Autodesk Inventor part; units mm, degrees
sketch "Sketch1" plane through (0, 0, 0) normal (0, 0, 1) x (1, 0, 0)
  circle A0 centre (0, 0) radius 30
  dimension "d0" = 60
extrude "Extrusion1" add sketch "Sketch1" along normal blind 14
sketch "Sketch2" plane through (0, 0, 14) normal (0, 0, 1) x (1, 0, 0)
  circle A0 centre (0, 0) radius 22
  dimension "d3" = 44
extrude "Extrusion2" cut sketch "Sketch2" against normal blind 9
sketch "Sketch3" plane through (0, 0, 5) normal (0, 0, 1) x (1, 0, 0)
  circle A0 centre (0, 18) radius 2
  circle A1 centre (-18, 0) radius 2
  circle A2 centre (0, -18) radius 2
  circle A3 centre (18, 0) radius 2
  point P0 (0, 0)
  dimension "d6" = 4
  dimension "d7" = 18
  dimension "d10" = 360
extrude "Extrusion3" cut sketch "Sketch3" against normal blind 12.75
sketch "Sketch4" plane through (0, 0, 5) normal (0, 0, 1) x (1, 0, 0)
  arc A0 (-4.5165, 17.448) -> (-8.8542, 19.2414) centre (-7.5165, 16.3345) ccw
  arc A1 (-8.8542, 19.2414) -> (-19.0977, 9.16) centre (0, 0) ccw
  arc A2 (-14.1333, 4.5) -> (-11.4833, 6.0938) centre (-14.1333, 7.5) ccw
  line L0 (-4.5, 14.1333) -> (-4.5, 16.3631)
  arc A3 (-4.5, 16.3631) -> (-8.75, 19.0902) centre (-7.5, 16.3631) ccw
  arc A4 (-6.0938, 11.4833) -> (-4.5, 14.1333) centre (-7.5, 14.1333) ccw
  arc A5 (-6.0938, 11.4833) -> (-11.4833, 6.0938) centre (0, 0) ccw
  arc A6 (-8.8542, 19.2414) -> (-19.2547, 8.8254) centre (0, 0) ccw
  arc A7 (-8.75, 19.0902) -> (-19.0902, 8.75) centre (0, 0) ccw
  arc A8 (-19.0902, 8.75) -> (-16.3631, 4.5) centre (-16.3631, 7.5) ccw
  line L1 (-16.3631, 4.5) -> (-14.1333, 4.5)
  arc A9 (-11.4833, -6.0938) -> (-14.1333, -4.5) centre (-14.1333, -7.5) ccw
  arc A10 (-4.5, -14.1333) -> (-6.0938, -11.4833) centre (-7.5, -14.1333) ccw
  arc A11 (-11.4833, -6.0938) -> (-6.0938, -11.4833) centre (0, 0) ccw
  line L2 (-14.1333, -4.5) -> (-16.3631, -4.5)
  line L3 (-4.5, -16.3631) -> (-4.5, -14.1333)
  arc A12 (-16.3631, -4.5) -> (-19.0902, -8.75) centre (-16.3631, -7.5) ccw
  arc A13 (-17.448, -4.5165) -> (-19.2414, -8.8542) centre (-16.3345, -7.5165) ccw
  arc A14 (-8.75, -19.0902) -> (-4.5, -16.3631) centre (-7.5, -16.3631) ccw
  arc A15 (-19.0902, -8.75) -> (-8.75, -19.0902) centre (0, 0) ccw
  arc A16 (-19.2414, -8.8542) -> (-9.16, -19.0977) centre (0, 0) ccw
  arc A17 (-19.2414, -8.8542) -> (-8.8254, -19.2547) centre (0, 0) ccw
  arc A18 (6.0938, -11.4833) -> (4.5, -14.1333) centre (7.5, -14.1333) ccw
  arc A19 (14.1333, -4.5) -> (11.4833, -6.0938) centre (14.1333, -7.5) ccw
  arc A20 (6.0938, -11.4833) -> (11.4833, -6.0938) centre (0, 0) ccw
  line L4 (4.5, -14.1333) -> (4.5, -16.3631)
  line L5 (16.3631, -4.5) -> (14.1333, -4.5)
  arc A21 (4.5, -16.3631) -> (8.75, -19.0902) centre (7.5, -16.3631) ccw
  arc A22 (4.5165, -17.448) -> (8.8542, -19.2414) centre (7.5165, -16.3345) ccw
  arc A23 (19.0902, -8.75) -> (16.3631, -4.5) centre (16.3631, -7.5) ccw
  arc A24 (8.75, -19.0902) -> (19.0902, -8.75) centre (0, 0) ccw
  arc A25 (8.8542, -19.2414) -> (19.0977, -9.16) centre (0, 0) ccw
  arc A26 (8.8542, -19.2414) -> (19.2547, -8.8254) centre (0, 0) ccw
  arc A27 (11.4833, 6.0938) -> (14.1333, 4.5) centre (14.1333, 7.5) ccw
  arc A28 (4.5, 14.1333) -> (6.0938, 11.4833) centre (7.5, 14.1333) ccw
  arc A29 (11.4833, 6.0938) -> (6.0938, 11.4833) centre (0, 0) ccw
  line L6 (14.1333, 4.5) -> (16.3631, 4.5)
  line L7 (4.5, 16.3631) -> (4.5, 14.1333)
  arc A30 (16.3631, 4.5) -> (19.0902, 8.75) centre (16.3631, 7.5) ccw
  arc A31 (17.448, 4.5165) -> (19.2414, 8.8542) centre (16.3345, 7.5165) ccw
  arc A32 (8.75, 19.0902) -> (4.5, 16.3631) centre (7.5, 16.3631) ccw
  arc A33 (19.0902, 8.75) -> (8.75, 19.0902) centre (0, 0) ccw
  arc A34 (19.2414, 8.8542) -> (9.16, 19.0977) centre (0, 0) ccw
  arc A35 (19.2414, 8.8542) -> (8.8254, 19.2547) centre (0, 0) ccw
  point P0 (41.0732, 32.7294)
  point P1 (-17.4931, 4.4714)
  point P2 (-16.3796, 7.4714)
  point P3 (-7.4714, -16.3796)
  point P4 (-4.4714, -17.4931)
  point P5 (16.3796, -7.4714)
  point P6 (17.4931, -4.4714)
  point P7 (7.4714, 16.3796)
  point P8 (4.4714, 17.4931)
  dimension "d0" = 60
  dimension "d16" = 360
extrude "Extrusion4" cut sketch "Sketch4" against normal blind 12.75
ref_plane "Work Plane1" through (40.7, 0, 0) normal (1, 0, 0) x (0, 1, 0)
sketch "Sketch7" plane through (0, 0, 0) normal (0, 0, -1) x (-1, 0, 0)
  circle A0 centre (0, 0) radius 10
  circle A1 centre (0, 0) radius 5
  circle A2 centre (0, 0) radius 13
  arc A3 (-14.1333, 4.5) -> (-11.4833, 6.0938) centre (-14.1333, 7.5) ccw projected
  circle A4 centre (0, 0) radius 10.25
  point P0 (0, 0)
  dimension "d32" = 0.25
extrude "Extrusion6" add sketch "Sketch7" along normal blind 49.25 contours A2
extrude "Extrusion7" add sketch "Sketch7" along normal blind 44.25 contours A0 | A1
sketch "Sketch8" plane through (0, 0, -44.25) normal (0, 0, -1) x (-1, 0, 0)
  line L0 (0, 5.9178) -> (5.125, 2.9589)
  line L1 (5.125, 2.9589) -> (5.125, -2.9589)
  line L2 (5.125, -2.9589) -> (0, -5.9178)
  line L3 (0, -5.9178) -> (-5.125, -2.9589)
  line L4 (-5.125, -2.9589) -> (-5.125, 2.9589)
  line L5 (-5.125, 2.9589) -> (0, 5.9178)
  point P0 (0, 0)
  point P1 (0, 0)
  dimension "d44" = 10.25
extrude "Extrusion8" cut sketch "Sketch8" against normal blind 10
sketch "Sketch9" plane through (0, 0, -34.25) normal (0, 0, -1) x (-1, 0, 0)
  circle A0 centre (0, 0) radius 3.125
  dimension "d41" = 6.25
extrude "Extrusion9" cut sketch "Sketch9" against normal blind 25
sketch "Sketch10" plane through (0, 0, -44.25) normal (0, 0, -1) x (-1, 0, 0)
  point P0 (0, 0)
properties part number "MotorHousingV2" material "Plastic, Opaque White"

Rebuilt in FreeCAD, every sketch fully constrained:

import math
import FreeCAD as App
import Part
import Sketcher
Q = App.Units.Quantity


def add_polygon(sketch, points):
    """Adds a closed chain of lines whose ends are joined by coincident constraints."""
    first, n = sketch.GeometryCount, len(points)
    for a, b in zip(points, points[1:] + points[:1]):
        sketch.addGeometry(Part.LineSegment(App.Vector(*a, 0), App.Vector(*b, 0)), False)
    for i in range(n):
        sketch.addConstraint(Sketcher.Constraint("Coincident", first + i, 2, first + (i + 1) % n, 1))

doc = App.newDocument("Part")
params = doc.addObject("Spreadsheet::Sheet", "Params")
for row, (alias, value) in enumerate([
    ("sketch1_diameter", "60 mm"),
    ("pad1_length", "14 mm"),
    ("sketch2_diameter", "44 mm"),
    ("pocket1_length", "9 mm"),
    ("sketch3_diameter", "4 mm"),
    ("pocket2_length", "12.75 mm"),
    ("sketch4_radius", "3 mm"),
    ("sketch4_radius2", "13 mm"),
    ("sketch4_radius3", "21 mm"),
    ("pocket3_length", "12.75 mm"),
    ("sketch5_diameter", "26 mm"),
    ("sketch5_diameter2", "20.5 mm"),
    ("pad2_length", "49.25 mm"),
    ("sketch6_diameter", "20 mm"),
    ("pad3_length", "44.25 mm"),
    ("pocket4_length", "10 mm"),
    ("sketch8_diameter", "6.25 mm"),
    ("pocket5_length", "25 mm"),
], start=1):
    params.set(f"A{row}", alias)
    params.set(f"B{row}", "=" + value)
    params.setAlias(f"B{row}", alias)

body = doc.addObject("PartDesign::Body", "Body")

# Sketch on XY plane
sketch1 = body.newObject("Sketcher::SketchObject", "Sketch")
sketch1.AttachmentSupport = (doc.getObject("XY_Plane"), [""])
sketch1.MapMode = "FlatFace"
sketch1.addGeometry(Part.Circle(App.Vector(0, 0, 0), App.Vector(0, 0, 1), 30), False)
sketch1.addConstraint(Sketcher.Constraint("Coincident", 0, 3, -1, 1))
sketch1.addConstraint(Sketcher.Constraint("Diameter", 0, Q("60 mm")))
sketch1.setExpression("Constraints[1]", "Params.sketch1_diameter")
pad1 = body.newObject("PartDesign::Pad", "Pad")
pad1.Profile = sketch1
pad1.setExpression("Length", "Params.pad1_length")

# Sketch on XY plane
sketch2 = body.newObject("Sketcher::SketchObject", "Sketch001")
sketch2.AttachmentSupport = (doc.getObject("XY_Plane"), [""])
sketch2.MapMode = "FlatFace"
sketch2.AttachmentOffset = App.Placement(App.Vector(0, 0, 14), App.Rotation())
sketch2.addGeometry(Part.Circle(App.Vector(0, 0, 0), App.Vector(0, 0, 1), 22), False)
sketch2.addConstraint(Sketcher.Constraint("Coincident", 0, 3, -1, 1))
sketch2.addConstraint(Sketcher.Constraint("Diameter", 0, Q("44 mm")))
sketch2.setExpression("Constraints[1]", "Params.sketch2_diameter")
pocket1 = body.newObject("PartDesign::Pocket", "Pocket")
pocket1.Profile = sketch2
pocket1.setExpression("Length", "Params.pocket1_length")

# Sketch on XY plane
sketch3 = body.newObject("Sketcher::SketchObject", "Sketch002")
sketch3.AttachmentSupport = (doc.getObject("XY_Plane"), [""])
sketch3.MapMode = "FlatFace"
sketch3.AttachmentOffset = App.Placement(App.Vector(0, 0, 5), App.Rotation())
sketch3.addGeometry(Part.Circle(App.Vector(0, 18, 0), App.Vector(0, 0, 1), 2), False)
sketch3.addGeometry(Part.Circle(App.Vector(-18, 0, 0), App.Vector(0, 0, 1), 2), False)
sketch3.addGeometry(Part.Circle(App.Vector(0, -18, 0), App.Vector(0, 0, 1), 2), False)
sketch3.addGeometry(Part.Circle(App.Vector(18, 0, 0), App.Vector(0, 0, 1), 2), False)
sketch3.addConstraint(Sketcher.Constraint("Equal", 0, 1))
sketch3.addConstraint(Sketcher.Constraint("Equal", 1, 2))
sketch3.addConstraint(Sketcher.Constraint("Equal", 2, 3))
sketch3.addConstraint(Sketcher.Constraint("Symmetric", 0, 3, 2, 3, -1, 1))
sketch3.addConstraint(Sketcher.Constraint("Symmetric", 1, 3, 3, 3, -1, 1))
sketch3.addConstraint(Sketcher.Constraint("PointOnObject", 0, 3, -2))
sketch3.addConstraint(Sketcher.Constraint("PointOnObject", 1, 3, -1))
sketch3.addConstraint(Sketcher.Constraint("Diameter", 0, Q("4 mm")))
sketch3.addConstraint(Sketcher.Constraint("DistanceY", -1, 1, 0, 3, Q("18 mm")))
sketch3.addConstraint(Sketcher.Constraint("DistanceX", 1, 3, -1, 1, Q("18 mm")))
sketch3.setExpression("Constraints[7]", "Params.sketch3_diameter")
pocket2 = body.newObject("PartDesign::Pocket", "Pocket001")
pocket2.Profile = sketch3
pocket2.setExpression("Length", "Params.pocket2_length")

# Sketch on XY plane
sketch4 = body.newObject("Sketcher::SketchObject", "Sketch003")
sketch4.AttachmentSupport = (doc.getObject("XY_Plane"), [""])
sketch4.MapMode = "FlatFace"
sketch4.AttachmentOffset = App.Placement(App.Vector(0, 0, 5), App.Rotation())
sketch4.addGeometry(Part.LineSegment(App.Vector(-16.3631, 4.5, 0), App.Vector(-14.1333, 4.5, 0)), False)
sketch4.addGeometry(Part.ArcOfCircle(Part.Circle(App.Vector(-14.1333, 7.5, 0), App.Vector(0, 0, 1), 3), math.radians(-90), math.radians(-27.952277)), False)
sketch4.addGeometry(Part.ArcOfCircle(Part.Circle(App.Vector(0, 0, 0), App.Vector(0, 0, 1), 13.000022), math.radians(117.953384), math.radians(152.046616)), False)
sketch4.addGeometry(Part.ArcOfCircle(Part.Circle(App.Vector(-7.5, 14.1333, 0), App.Vector(0, 0, 1), 2.999983), math.radians(-62.047723), math.radians(0)), False)
sketch4.addGeometry(Part.LineSegment(App.Vector(-4.5, 14.1333, 0), App.Vector(-4.5, 16.3631, 0)), False)
sketch4.addGeometry(Part.ArcOfCircle(Part.Circle(App.Vector(-7.5, 16.3631, 0), App.Vector(0, 0, 1), 3), math.radians(0), math.radians(114.624939)), False)
sketch4.addGeometry(Part.ArcOfCircle(Part.Circle(App.Vector(0, 0, 0), App.Vector(0, 0, 1), 20.999958), math.radians(114.624371), math.radians(155.375629)), False)
sketch4.addGeometry(Part.ArcOfCircle(Part.Circle(App.Vector(-16.3631, 7.5, 0), App.Vector(0, 0, 1), 2.999929), math.radians(155.375061), math.radians(270)), False)
sketch4.addGeometry(Part.ArcOfCircle(Part.Circle(App.Vector(0, 0, 0), App.Vector(0, 0, 1), 13.000022), math.radians(-152.046616), math.radians(-117.953384)), False)
sketch4.addGeometry(Part.ArcOfCircle(Part.Circle(App.Vector(-14.1333, -7.5, 0), App.Vector(0, 0, 1), 2.999983), math.radians(27.952277), math.radians(90)), False)
sketch4.addGeometry(Part.LineSegment(App.Vector(-14.1333, -4.5, 0), App.Vector(-16.3631, -4.5, 0)), False)
sketch4.addGeometry(Part.ArcOfCircle(Part.Circle(App.Vector(-16.3631, -7.5, 0), App.Vector(0, 0, 1), 3), math.radians(90), math.radians(204.624939)), False)
sketch4.addGeometry(Part.ArcOfCircle(Part.Circle(App.Vector(0, 0, 0), App.Vector(0, 0, 1), 20.999958), math.radians(-155.375629), math.radians(-114.624371)), False)
sketch4.addGeometry(Part.ArcOfCircle(Part.Circle(App.Vector(-7.5, -16.3631, 0), App.Vector(0, 0, 1), 2.999929), math.radians(-114.624939), math.radians(0)), False)
sketch4.addGeometry(Part.LineSegment(App.Vector(-4.5, -16.3631, 0), App.Vector(-4.5, -14.1333, 0)), False)
sketch4.addGeometry(Part.ArcOfCircle(Part.Circle(App.Vector(-7.5, -14.1333, 0), App.Vector(0, 0, 1), 3), math.radians(0), math.radians(62.047723)), False)
sketch4.addGeometry(Part.ArcOfCircle(Part.Circle(App.Vector(0, 0, 0), App.Vector(0, 0, 1), 13.000022), math.radians(-62.046616), math.radians(-27.953384)), False)
sketch4.addGeometry(Part.ArcOfCircle(Part.Circle(App.Vector(7.5, -14.1333, 0), App.Vector(0, 0, 1), 2.999983), math.radians(117.952277), math.radians(180)), False)
sketch4.addGeometry(Part.LineSegment(App.Vector(4.5, -14.1333, 0), App.Vector(4.5, -16.3631, 0)), False)
sketch4.addGeometry(Part.ArcOfCircle(Part.Circle(App.Vector(7.5, -16.3631, 0), App.Vector(0, 0, 1), 3), math.radians(180), math.radians(294.624939)), False)
sketch4.addGeometry(Part.ArcOfCircle(Part.Circle(App.Vector(0, 0, 0), App.Vector(0, 0, 1), 20.999958), math.radians(-65.375629), math.radians(-24.624371)), False)
sketch4.addGeometry(Part.ArcOfCircle(Part.Circle(App.Vector(16.3631, -7.5, 0), App.Vector(0, 0, 1), 2.999929), math.radians(-24.624939), math.radians(90)), False)
sketch4.addGeometry(Part.LineSegment(App.Vector(16.3631, -4.5, 0), App.Vector(14.1333, -4.5, 0)), False)
sketch4.addGeometry(Part.ArcOfCircle(Part.Circle(App.Vector(14.1333, -7.5, 0), App.Vector(0, 0, 1), 3), math.radians(90), math.radians(152.047723)), False)
sketch4.addGeometry(Part.ArcOfCircle(Part.Circle(App.Vector(0, 0, 0), App.Vector(0, 0, 1), 13.000022), math.radians(27.953384), math.radians(62.046616)), False)
sketch4.addGeometry(Part.ArcOfCircle(Part.Circle(App.Vector(14.1333, 7.5, 0), App.Vector(0, 0, 1), 2.999983), math.radians(-152.047723), math.radians(-90)), False)
sketch4.addGeometry(Part.LineSegment(App.Vector(14.1333, 4.5, 0), App.Vector(16.3631, 4.5, 0)), False)
sketch4.addGeometry(Part.ArcOfCircle(Part.Circle(App.Vector(16.3631, 7.5, 0), App.Vector(0, 0, 1), 3), math.radians(-90), math.radians(24.624939)), False)
sketch4.addGeometry(Part.ArcOfCircle(Part.Circle(App.Vector(0, 0, 0), App.Vector(0, 0, 1), 20.999958), math.radians(24.624371), math.radians(65.375629)), False)
sketch4.addGeometry(Part.ArcOfCircle(Part.Circle(App.Vector(7.5, 16.3631, 0), App.Vector(0, 0, 1), 2.999929), math.radians(65.375061), math.radians(180)), False)
sketch4.addGeometry(Part.LineSegment(App.Vector(4.5, 16.3631, 0), App.Vector(4.5, 14.1333, 0)), False)
sketch4.addGeometry(Part.ArcOfCircle(Part.Circle(App.Vector(7.5, 14.1333, 0), App.Vector(0, 0, 1), 3), math.radians(180), math.radians(242.047723)), False)
sketch4.addConstraint(Sketcher.Constraint("Tangent", 0, 2, 1, 1))
sketch4.addConstraint(Sketcher.Constraint("Tangent", 1, 2, 2, 2))
sketch4.addConstraint(Sketcher.Constraint("Tangent", 2, 1, 3, 1))
sketch4.addConstraint(Sketcher.Constraint("Tangent", 3, 2, 4, 1))
sketch4.addConstraint(Sketcher.Constraint("Tangent", 4, 2, 5, 1))
sketch4.addConstraint(Sketcher.Constraint("Tangent", 5, 2, 6, 1))
sketch4.addConstraint(Sketcher.Constraint("Tangent", 6, 2, 7, 1))
sketch4.addConstraint(Sketcher.Constraint("Tangent", 7, 2, 0, 1))
sketch4.addConstraint(Sketcher.Constraint("Tangent", 8, 1, 9, 1))
sketch4.addConstraint(Sketcher.Constraint("Tangent", 9, 2, 10, 1))
sketch4.addConstraint(Sketcher.Constraint("Tangent", 10, 2, 11, 1))
sketch4.addConstraint(Sketcher.Constraint("Tangent", 11, 2, 12, 1))
sketch4.addConstraint(Sketcher.Constraint("Tangent", 12, 2, 13, 1))
sketch4.addConstraint(Sketcher.Constraint("Tangent", 13, 2, 14, 1))
sketch4.addConstraint(Sketcher.Constraint("Tangent", 14, 2, 15, 1))
sketch4.addConstraint(Sketcher.Constraint("Tangent", 15, 2, 8, 2))
sketch4.addConstraint(Sketcher.Constraint("Tangent", 16, 1, 17, 1))
sketch4.addConstraint(Sketcher.Constraint("Tangent", 17, 2, 18, 1))
sketch4.addConstraint(Sketcher.Constraint("Tangent", 18, 2, 19, 1))
sketch4.addConstraint(Sketcher.Constraint("Tangent", 19, 2, 20, 1))
sketch4.addConstraint(Sketcher.Constraint("Tangent", 20, 2, 21, 1))
sketch4.addConstraint(Sketcher.Constraint("Tangent", 21, 2, 22, 1))
sketch4.addConstraint(Sketcher.Constraint("Tangent", 22, 2, 23, 1))
sketch4.addConstraint(Sketcher.Constraint("Tangent", 23, 2, 16, 2))
sketch4.addConstraint(Sketcher.Constraint("Tangent", 24, 1, 25, 1))
sketch4.addConstraint(Sketcher.Constraint("Tangent", 25, 2, 26, 1))
sketch4.addConstraint(Sketcher.Constraint("Tangent", 26, 2, 27, 1))
sketch4.addConstraint(Sketcher.Constraint("Tangent", 27, 2, 28, 1))
sketch4.addConstraint(Sketcher.Constraint("Tangent", 28, 2, 29, 1))
sketch4.addConstraint(Sketcher.Constraint("Tangent", 29, 2, 30, 1))
sketch4.addConstraint(Sketcher.Constraint("Tangent", 30, 2, 31, 1))
sketch4.addConstraint(Sketcher.Constraint("Tangent", 31, 2, 24, 2))
sketch4.addConstraint(Sketcher.Constraint("Horizontal", 0))
sketch4.addConstraint(Sketcher.Constraint("Vertical", 4))
sketch4.addConstraint(Sketcher.Constraint("Horizontal", 10))
sketch4.addConstraint(Sketcher.Constraint("Vertical", 14))
sketch4.addConstraint(Sketcher.Constraint("Vertical", 18))
sketch4.addConstraint(Sketcher.Constraint("Horizontal", 22))
sketch4.addConstraint(Sketcher.Constraint("Horizontal", 26))
sketch4.addConstraint(Sketcher.Constraint("Vertical", 30))
sketch4.addConstraint(Sketcher.Constraint("Coincident", 2, 3, -1, 1))
sketch4.addConstraint(Sketcher.Constraint("Coincident", 6, 3, -1, 1))
sketch4.addConstraint(Sketcher.Constraint("Coincident", 8, 3, -1, 1))
sketch4.addConstraint(Sketcher.Constraint("Coincident", 12, 3, -1, 1))
sketch4.addConstraint(Sketcher.Constraint("Coincident", 16, 3, -1, 1))
sketch4.addConstraint(Sketcher.Constraint("Coincident", 20, 3, -1, 1))
sketch4.addConstraint(Sketcher.Constraint("Coincident", 24, 3, -1, 1))
sketch4.addConstraint(Sketcher.Constraint("Coincident", 28, 3, -1, 1))
sketch4.addConstraint(Sketcher.Constraint("Equal", 1, 3))
sketch4.addConstraint(Sketcher.Constraint("Equal", 3, 5))
sketch4.addConstraint(Sketcher.Constraint("Equal", 5, 7))
sketch4.addConstraint(Sketcher.Constraint("Equal", 2, 8))
sketch4.addConstraint(Sketcher.Constraint("Equal", 7, 9))
sketch4.addConstraint(Sketcher.Constraint("Equal", 9, 11))
sketch4.addConstraint(Sketcher.Constraint("Equal", 6, 12))
sketch4.addConstraint(Sketcher.Constraint("Equal", 11, 13))
sketch4.addConstraint(Sketcher.Constraint("Equal", 13, 15))
sketch4.addConstraint(Sketcher.Constraint("Equal", 8, 16))
sketch4.addConstraint(Sketcher.Constraint("Equal", 15, 17))
sketch4.addConstraint(Sketcher.Constraint("Equal", 17, 19))
sketch4.addConstraint(Sketcher.Constraint("Equal", 12, 20))
sketch4.addConstraint(Sketcher.Constraint("Equal", 19, 21))
sketch4.addConstraint(Sketcher.Constraint("Equal", 21, 23))
sketch4.addConstraint(Sketcher.Constraint("Equal", 16, 24))
sketch4.addConstraint(Sketcher.Constraint("Equal", 23, 25))
sketch4.addConstraint(Sketcher.Constraint("Equal", 25, 27))
sketch4.addConstraint(Sketcher.Constraint("Equal", 20, 28))
sketch4.addConstraint(Sketcher.Constraint("Equal", 27, 29))
sketch4.addConstraint(Sketcher.Constraint("Equal", 29, 31))
sketch4.addConstraint(Sketcher.Constraint("Horizontal", 15, 3, 17, 3))
sketch4.addConstraint(Sketcher.Constraint("Horizontal", 11, 3, 21, 3))
sketch4.addConstraint(Sketcher.Constraint("Horizontal", 7, 3, 25, 3))
sketch4.addConstraint(Sketcher.Constraint("Horizontal", 5, 3, 29, 3))
sketch4.addConstraint(Sketcher.Constraint("Vertical", 1, 3, 9, 3))
sketch4.addConstraint(Sketcher.Constraint("Vertical", 5, 3, 13, 3))
sketch4.addConstraint(Sketcher.Constraint("Equal", 26, 4))
sketch4.addConstraint(Sketcher.Constraint("Radius", 1, Q("3 mm")))
sketch4.addConstraint(Sketcher.Constraint("Radius", 2, Q("13 mm")))
sketch4.addConstraint(Sketcher.Constraint("Radius", 6, Q("21 mm")))
sketch4.addConstraint(Sketcher.Constraint("DistanceY", 9, 3, 1, 3, Q("15 mm")))
sketch4.setExpression("Constraints[76]", "Params.sketch4_radius")
sketch4.setExpression("Constraints[77]", "Params.sketch4_radius2")
sketch4.setExpression("Constraints[78]", "Params.sketch4_radius3")
pocket3 = body.newObject("PartDesign::Pocket", "Pocket002")
pocket3.Profile = sketch4
pocket3.setExpression("Length", "Params.pocket3_length")

# Sketch on XY plane
sketch5 = body.newObject("Sketcher::SketchObject", "Sketch004")
sketch5.AttachmentSupport = (doc.getObject("XY_Plane"), [""])
sketch5.MapMode = "FlatFace"
sketch5.addGeometry(Part.Circle(App.Vector(0, 0, 0), App.Vector(0, 0, 1), 13), False)
sketch5.addGeometry(Part.Circle(App.Vector(0, 0, 0), App.Vector(0, 0, 1), 10.25), False)
sketch5.addConstraint(Sketcher.Constraint("Coincident", 0, 3, -1, 1))
sketch5.addConstraint(Sketcher.Constraint("Coincident", 1, 3, -1, 1))
sketch5.addConstraint(Sketcher.Constraint("Diameter", 0, Q("26 mm")))
sketch5.addConstraint(Sketcher.Constraint("Diameter", 1, Q("20.5 mm")))
sketch5.setExpression("Constraints[2]", "Params.sketch5_diameter")
sketch5.setExpression("Constraints[3]", "Params.sketch5_diameter2")
pad2 = body.newObject("PartDesign::Pad", "Pad001")
pad2.Profile = sketch5
pad2.setExpression("Length", "Params.pad2_length")
pad2.Reversed = True

# Sketch on XY plane
sketch6 = body.newObject("Sketcher::SketchObject", "Sketch005")
sketch6.AttachmentSupport = (doc.getObject("XY_Plane"), [""])
sketch6.MapMode = "FlatFace"
sketch6.addGeometry(Part.Circle(App.Vector(0, 0, 0), App.Vector(0, 0, 1), 10), False)
sketch6.addConstraint(Sketcher.Constraint("Coincident", 0, 3, -1, 1))
sketch6.addConstraint(Sketcher.Constraint("Diameter", 0, Q("20 mm")))
sketch6.setExpression("Constraints[1]", "Params.sketch6_diameter")
pad3 = body.newObject("PartDesign::Pad", "Pad002")
pad3.Profile = sketch6
pad3.setExpression("Length", "Params.pad3_length")
pad3.Reversed = True

# Sketch on XY plane
sketch7 = body.newObject("Sketcher::SketchObject", "Sketch006")
sketch7.AttachmentSupport = (doc.getObject("XY_Plane"), [""])
sketch7.MapMode = "FlatFace"
sketch7.AttachmentOffset = App.Placement(App.Vector(0, 0, -44.25), App.Rotation())
add_polygon(sketch7, [(-5.125, 2.9589), (0, 5.9178), (5.125, 2.9589), (5.125, -2.9589), (0, -5.9178), (-5.125, -2.9589)])  # lines 0-5
sketch7.addConstraint(Sketcher.Constraint("Vertical", 2))
sketch7.addConstraint(Sketcher.Constraint("Vertical", 5))
sketch7.addConstraint(Sketcher.Constraint("Symmetric", 0, 2, 3, 2, -1, 1))
sketch7.addConstraint(Sketcher.Constraint("Symmetric", 1, 2, 4, 2, -1, 1))
sketch7.addConstraint(Sketcher.Constraint("PointOnObject", 0, 2, -2))
sketch7.addConstraint(Sketcher.Constraint("Parallel", 0, 3))
sketch7.addConstraint(Sketcher.Constraint("Horizontal", 2, 2, 4, 2))
sketch7.addConstraint(Sketcher.Constraint("Angle", 0, Q("29.9998 deg")))
sketch7.addConstraint(Sketcher.Constraint("DistanceX", 4, 2, 2, 2, Q("10.25 mm")))
sketch7.addConstraint(Sketcher.Constraint("DistanceY", 2, 2, 2, 1, Q("5.9178 mm")))
pocket4 = body.newObject("PartDesign::Pocket", "Pocket003")
pocket4.Profile = sketch7
pocket4.setExpression("Length", "Params.pocket4_length")
pocket4.Reversed = True

# Sketch on XY plane
sketch8 = body.newObject("Sketcher::SketchObject", "Sketch007")
sketch8.AttachmentSupport = (doc.getObject("XY_Plane"), [""])
sketch8.MapMode = "FlatFace"
sketch8.AttachmentOffset = App.Placement(App.Vector(0, 0, -34.25), App.Rotation())
sketch8.addGeometry(Part.Circle(App.Vector(0, 0, 0), App.Vector(0, 0, 1), 3.125), False)
sketch8.addConstraint(Sketcher.Constraint("Coincident", 0, 3, -1, 1))
sketch8.addConstraint(Sketcher.Constraint("Diameter", 0, Q("6.25 mm")))
sketch8.setExpression("Constraints[1]", "Params.sketch8_diameter")
pocket5 = body.newObject("PartDesign::Pocket", "Pocket004")
pocket5.Profile = sketch8
pocket5.setExpression("Length", "Params.pocket5_length")
pocket5.Reversed = True

doc.recompute()
